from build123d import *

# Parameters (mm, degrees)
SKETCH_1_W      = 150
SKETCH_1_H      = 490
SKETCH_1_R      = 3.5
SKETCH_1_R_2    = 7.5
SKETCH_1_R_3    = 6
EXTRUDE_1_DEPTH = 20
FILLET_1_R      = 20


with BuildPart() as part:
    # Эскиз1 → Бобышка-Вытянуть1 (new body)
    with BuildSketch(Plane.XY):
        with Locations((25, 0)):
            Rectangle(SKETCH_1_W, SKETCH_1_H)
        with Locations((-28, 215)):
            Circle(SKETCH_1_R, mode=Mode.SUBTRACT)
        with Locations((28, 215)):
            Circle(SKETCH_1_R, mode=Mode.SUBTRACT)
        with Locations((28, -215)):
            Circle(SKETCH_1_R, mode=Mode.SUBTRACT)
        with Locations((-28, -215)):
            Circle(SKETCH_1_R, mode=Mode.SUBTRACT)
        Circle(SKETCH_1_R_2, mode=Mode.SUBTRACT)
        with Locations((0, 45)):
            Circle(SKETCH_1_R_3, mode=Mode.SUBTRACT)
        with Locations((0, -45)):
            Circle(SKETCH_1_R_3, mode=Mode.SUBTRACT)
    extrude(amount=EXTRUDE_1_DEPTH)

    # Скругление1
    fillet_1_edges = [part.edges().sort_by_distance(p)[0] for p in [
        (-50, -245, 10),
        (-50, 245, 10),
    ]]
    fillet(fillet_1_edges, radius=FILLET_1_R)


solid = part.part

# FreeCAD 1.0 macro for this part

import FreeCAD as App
import Part
import Sketcher

V = App.Vector


def edges_at(feature, points):
    """Names of the edges that pass closest to the given points."""
    edges = feature.Shape.Edges
    near = lambda p: min(range(len(edges)), key=lambda i: edges[i].distToShape(Part.Vertex(*p))[0])
    return sorted({f"Edge{near(p) + 1}" for p in points})

doc = App.newDocument("Part")
body = doc.addObject("PartDesign::Body", "Body")

sketch1 = doc.addObject("Sketcher::SketchObject", "Sketch")
body.addObject(sketch1)
sketch1.AttachmentSupport = (doc.XY_Plane, [""])
sketch1.MapMode = "FlatFace"
sketch1.addGeometry(Part.LineSegment(V(-50, 245, 0), V(-50, -245, 0)), False)
sketch1.addGeometry(Part.LineSegment(V(-50, -245, 0), V(100, -245, 0)), False)
sketch1.addGeometry(Part.LineSegment(V(100, -245, 0), V(100, 245, 0)), False)
sketch1.addGeometry(Part.LineSegment(V(100, 245, 0), V(-50, 245, 0)), False)
sketch1.addGeometry(Part.Circle(V(-28, -215, 0), V(0, 0, 1), 3.5), False)
sketch1.addGeometry(Part.Circle(V(28, -215, 0), V(0, 0, 1), 3.5), False)
sketch1.addGeometry(Part.Circle(V(0, -45, 0), V(0, 0, 1), 6), False)
sketch1.addGeometry(Part.Circle(V(-28, 215, 0), V(0, 0, 1), 3.5), False)
sketch1.addGeometry(Part.Circle(V(0, 0, 0), V(0, 0, 1), 7.5), False)
sketch1.addGeometry(Part.Circle(V(0, 45, 0), V(0, 0, 1), 6), False)
sketch1.addGeometry(Part.Circle(V(28, 215, 0), V(0, 0, 1), 3.5), False)
sketch1.addConstraint(Sketcher.Constraint("Coincident", 0, 2, 1, 1))
sketch1.addConstraint(Sketcher.Constraint("Coincident", 1, 2, 2, 1))
sketch1.addConstraint(Sketcher.Constraint("Coincident", 2, 2, 3, 1))
sketch1.addConstraint(Sketcher.Constraint("Coincident", 3, 2, 0, 1))
sketch1.addConstraint(Sketcher.Constraint("Vertical", 0))
sketch1.addConstraint(Sketcher.Constraint("Horizontal", 1))
sketch1.addConstraint(Sketcher.Constraint("Vertical", 2))
sketch1.addConstraint(Sketcher.Constraint("Horizontal", 3))
sketch1.addConstraint(Sketcher.Constraint("Coincident", 8, 3, -1, 1))
sketch1.addConstraint(Sketcher.Constraint("Equal", 4, 5))
sketch1.addConstraint(Sketcher.Constraint("Equal", 5, 7))
sketch1.addConstraint(Sketcher.Constraint("Equal", 6, 9))
sketch1.addConstraint(Sketcher.Constraint("Equal", 7, 10))
sketch1.addConstraint(Sketcher.Constraint("Symmetric", 5, 3, 7, 3, -1, 1))
sketch1.addConstraint(Sketcher.Constraint("Symmetric", 6, 3, 9, 3, -1, 1))
sketch1.addConstraint(Sketcher.Constraint("Symmetric", 4, 3, 10, 3, -1, 1))
sketch1.addConstraint(Sketcher.Constraint("Symmetric", 4, 3, 5, 3, -2))
sketch1.addConstraint(Sketcher.Constraint("PointOnObject", 6, 3, -2))
sketch1.addConstraint(Sketcher.Constraint("Diameter", 4, 7.0))
sketch1.addConstraint(Sketcher.Constraint("Diameter", 6, 12.0))
sketch1.addConstraint(Sketcher.Constraint("Diameter", 8, 15.0))
sketch1.addConstraint(Sketcher.Constraint("DistanceX", 1, 1, 1, 2, 150.0))
sketch1.addConstraint(Sketcher.Constraint("DistanceY", 0, 2, 0, 1, 490.0))
sketch1.addConstraint(Sketcher.Constraint("DistanceX", 4, 3, -1, 1, 28.0))
sketch1.addConstraint(Sketcher.Constraint("DistanceY", 4, 3, -1, 1, 215.0))
sketch1.addConstraint(Sketcher.Constraint("DistanceY", 6, 3, -1, 1, 45.0))
sketch1.addConstraint(Sketcher.Constraint("DistanceX", 0, 2, -1, 1, 50.0))
sketch1.addConstraint(Sketcher.Constraint("DistanceY", 0, 2, -1, 1, 245.0))
pad1 = doc.addObject("PartDesign::Pad", "Pad")
body.addObject(pad1)
pad1.Profile = sketch1
pad1.Length = 20
doc.recompute()

fillet = doc.addObject("PartDesign::Fillet", "Fillet")
body.addObject(fillet)
fillet.Base = (pad1, edges_at(pad1, [(-50, -245, 10), (-50, 245, 10)]))
fillet.Radius = 20

doc.recompute()
